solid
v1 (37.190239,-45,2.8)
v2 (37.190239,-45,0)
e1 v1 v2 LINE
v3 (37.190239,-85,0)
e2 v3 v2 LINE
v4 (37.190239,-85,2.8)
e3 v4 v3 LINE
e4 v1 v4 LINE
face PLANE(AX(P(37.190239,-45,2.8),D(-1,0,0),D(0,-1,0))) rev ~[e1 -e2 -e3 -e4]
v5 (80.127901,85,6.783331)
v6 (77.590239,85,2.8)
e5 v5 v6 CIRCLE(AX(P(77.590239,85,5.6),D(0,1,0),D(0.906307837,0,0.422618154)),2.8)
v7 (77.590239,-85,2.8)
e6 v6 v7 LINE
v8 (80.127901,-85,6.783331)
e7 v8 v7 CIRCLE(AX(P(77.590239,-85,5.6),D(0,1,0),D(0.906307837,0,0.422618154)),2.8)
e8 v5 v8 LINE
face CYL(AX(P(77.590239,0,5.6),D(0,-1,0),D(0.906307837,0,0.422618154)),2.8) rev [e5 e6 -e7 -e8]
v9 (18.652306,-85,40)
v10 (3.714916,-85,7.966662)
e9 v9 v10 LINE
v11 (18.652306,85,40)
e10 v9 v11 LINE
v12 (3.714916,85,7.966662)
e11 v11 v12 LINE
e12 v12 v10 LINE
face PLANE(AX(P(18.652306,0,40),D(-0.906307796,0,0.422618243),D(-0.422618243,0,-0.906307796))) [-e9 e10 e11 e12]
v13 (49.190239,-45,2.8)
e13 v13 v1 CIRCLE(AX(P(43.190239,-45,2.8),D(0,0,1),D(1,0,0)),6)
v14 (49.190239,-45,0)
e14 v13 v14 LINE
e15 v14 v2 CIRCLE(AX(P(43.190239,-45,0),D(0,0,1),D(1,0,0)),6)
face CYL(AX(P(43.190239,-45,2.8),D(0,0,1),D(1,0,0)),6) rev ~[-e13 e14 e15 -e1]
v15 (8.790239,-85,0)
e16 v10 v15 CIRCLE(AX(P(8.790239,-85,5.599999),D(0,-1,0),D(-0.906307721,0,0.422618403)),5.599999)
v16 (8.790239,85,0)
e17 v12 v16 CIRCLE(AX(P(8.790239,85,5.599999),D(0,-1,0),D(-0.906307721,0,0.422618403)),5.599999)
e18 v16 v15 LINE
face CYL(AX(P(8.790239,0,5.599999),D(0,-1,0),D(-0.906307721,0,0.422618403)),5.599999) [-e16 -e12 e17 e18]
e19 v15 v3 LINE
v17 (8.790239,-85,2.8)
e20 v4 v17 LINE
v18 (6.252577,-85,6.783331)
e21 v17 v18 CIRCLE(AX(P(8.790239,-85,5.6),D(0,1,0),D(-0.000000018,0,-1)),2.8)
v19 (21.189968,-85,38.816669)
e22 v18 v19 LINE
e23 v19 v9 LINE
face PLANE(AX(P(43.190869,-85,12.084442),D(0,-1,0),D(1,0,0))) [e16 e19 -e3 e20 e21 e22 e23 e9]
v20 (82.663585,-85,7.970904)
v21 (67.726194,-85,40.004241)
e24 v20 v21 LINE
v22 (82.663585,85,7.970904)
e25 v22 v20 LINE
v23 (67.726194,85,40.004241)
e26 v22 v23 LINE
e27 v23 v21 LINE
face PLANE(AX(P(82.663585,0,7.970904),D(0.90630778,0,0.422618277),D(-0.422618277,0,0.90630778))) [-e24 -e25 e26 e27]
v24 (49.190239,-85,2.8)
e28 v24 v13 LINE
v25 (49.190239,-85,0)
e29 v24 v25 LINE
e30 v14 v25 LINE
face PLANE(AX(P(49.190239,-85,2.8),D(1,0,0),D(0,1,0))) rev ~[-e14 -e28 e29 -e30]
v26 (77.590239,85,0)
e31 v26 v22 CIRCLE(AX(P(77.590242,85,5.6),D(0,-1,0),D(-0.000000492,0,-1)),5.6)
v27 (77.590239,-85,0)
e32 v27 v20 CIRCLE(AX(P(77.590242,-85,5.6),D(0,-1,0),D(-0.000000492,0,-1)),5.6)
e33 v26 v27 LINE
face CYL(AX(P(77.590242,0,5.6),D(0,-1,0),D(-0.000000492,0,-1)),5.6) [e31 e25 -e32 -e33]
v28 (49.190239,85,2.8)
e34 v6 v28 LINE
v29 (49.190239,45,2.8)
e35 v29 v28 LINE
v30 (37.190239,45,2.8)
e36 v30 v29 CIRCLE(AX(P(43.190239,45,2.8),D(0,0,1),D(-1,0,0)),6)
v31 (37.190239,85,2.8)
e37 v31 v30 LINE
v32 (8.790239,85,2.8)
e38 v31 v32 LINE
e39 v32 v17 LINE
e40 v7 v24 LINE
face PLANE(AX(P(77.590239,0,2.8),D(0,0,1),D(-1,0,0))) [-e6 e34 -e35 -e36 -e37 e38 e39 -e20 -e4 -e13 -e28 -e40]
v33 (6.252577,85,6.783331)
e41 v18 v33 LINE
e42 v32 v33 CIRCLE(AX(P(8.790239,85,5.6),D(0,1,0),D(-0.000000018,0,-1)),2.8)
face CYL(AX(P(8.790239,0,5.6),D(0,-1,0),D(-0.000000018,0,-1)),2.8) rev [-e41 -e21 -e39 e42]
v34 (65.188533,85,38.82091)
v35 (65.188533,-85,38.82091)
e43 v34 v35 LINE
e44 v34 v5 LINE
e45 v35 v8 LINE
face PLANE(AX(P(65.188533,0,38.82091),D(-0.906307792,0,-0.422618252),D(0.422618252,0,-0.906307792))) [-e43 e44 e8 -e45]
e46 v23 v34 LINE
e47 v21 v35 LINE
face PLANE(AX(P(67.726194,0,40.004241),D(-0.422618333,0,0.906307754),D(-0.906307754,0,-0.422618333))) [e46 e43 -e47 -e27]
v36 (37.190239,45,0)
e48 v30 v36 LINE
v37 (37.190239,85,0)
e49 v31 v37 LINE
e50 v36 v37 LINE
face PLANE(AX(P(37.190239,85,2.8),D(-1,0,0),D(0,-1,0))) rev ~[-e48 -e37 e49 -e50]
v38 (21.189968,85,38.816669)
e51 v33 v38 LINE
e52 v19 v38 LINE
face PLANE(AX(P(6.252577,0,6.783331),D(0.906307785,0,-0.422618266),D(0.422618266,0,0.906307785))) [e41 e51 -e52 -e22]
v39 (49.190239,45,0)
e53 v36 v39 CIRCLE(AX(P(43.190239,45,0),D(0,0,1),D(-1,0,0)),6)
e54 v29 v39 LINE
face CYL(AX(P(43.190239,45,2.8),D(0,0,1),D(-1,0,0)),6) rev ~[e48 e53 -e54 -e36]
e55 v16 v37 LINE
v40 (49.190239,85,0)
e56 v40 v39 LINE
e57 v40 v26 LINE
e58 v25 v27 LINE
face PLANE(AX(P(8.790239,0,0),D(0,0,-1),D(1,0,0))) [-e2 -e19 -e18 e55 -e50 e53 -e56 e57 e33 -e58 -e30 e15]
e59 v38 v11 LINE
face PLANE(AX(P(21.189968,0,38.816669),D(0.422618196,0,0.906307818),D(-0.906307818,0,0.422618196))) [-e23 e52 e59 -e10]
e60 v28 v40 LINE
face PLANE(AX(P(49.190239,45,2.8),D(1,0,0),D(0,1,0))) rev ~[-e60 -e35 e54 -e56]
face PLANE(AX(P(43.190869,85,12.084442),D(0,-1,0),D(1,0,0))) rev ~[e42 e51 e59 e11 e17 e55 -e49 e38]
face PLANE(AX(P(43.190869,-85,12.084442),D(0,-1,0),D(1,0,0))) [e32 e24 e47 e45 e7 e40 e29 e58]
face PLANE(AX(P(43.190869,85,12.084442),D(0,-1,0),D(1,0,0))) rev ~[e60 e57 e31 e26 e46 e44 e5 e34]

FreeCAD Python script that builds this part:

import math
import FreeCAD as App
import Part
import Sketcher
from FreeCAD import Vector
Q = App.Units.Quantity

doc = App.newDocument("Part")
params = doc.addObject("Spreadsheet::Sheet", "Params")
for row, (alias, value) in enumerate([
    ("sketch1_radius", "5.599999 mm"),
    ("sketch1_radius2", "2.8 mm"),
    ("sketch1_width", "68.8 mm"),
    ("pad1_length", "170 mm"),
    ("sketch2_radius", "6 mm"),
    ("sketch2_height", "40 mm"),
], start=1):
    params.set(f"A{row}", alias)
    params.set(f"B{row}", "=" + value)
    params.setAlias(f"B{row}", alias)

body = doc.addObject("PartDesign::Body", "Body")

# Sketch on XZ plane
sketch1 = body.newObject("Sketcher::SketchObject", "Sketch")
sketch1.AttachmentSupport = (doc.getObject("XZ_Plane"), [""])
sketch1.MapMode = "FlatFace"
sketch1.addGeometry(Part.LineSegment(Vector(18.652306, 40, 0), Vector(3.714916, 7.966662, 0)), False)
sketch1.addGeometry(Part.ArcOfCircle(Part.Circle(Vector(8.790239, 5.599999, 0), Vector(0, 0, 1), 5.599999), math.radians(154.999991), math.radians(270.000004)), False)
sketch1.addGeometry(Part.LineSegment(Vector(8.790239, 0, 0), Vector(77.590239, 0, 0)), False)
sketch1.addGeometry(Part.ArcOfCircle(Part.Circle(Vector(77.590242, 5.6, 0), Vector(0, 0, 1), 5.6), math.radians(-90.000028), math.radians(25.047897)), False)
sketch1.addGeometry(Part.LineSegment(Vector(82.663585, 7.970904, 0), Vector(67.726194, 40.004241, 0)), False)
sketch1.addGeometry(Part.LineSegment(Vector(67.726194, 40.004241, 0), Vector(65.188533, 38.82091, 0)), False)
sketch1.addGeometry(Part.LineSegment(Vector(65.188533, 38.82091, 0), Vector(80.127901, 6.783331, 0)), False)
sketch1.addGeometry(Part.ArcOfCircle(Part.Circle(Vector(77.590239, 5.6, 0), Vector(0, 0, 1), 2.8), math.radians(-89.999999), math.radians(24.999993)), False)
sketch1.addGeometry(Part.LineSegment(Vector(77.590239, 2.8, 0), Vector(8.790239, 2.8, 0)), False)
sketch1.addGeometry(Part.ArcOfCircle(Part.Circle(Vector(8.790239, 5.6, 0), Vector(0, 0, 1), 2.8), math.radians(155.000007), math.radians(269.999999)), False)
sketch1.addGeometry(Part.LineSegment(Vector(6.252577, 6.783331, 0), Vector(21.189968, 38.816669, 0)), False)
sketch1.addGeometry(Part.LineSegment(Vector(21.189968, 38.816669, 0), Vector(18.652306, 40, 0)), False)
sketch1.addConstraint(Sketcher.Constraint("Tangent", 0, 2, 1, 1))
sketch1.addConstraint(Sketcher.Constraint("Tangent", 1, 2, 2, 1))
sketch1.addConstraint(Sketcher.Constraint("Tangent", 2, 2, 3, 1))
sketch1.addConstraint(Sketcher.Constraint("Coincident", 3, 2, 4, 1))
sketch1.addConstraint(Sketcher.Constraint("Coincident", 4, 2, 5, 1))
sketch1.addConstraint(Sketcher.Constraint("Coincident", 5, 2, 6, 1))
sketch1.addConstraint(Sketcher.Constraint("Tangent", 6, 2, 7, 2))
sketch1.addConstraint(Sketcher.Constraint("Tangent", 7, 1, 8, 1))
sketch1.addConstraint(Sketcher.Constraint("Tangent", 8, 2, 9, 2))
sketch1.addConstraint(Sketcher.Constraint("Tangent", 9, 1, 10, 1))
sketch1.addConstraint(Sketcher.Constraint("Coincident", 10, 2, 11, 1))
sketch1.addConstraint(Sketcher.Constraint("Coincident", 11, 2, 0, 1))
sketch1.addConstraint(Sketcher.Constraint("Horizontal", 2))
sketch1.addConstraint(Sketcher.Constraint("Horizontal", 8))
sketch1.addConstraint(Sketcher.Constraint("Coincident", 7, 3, 3, 3))
sketch1.addConstraint(Sketcher.Constraint("Coincident", 9, 3, 1, 3))
sketch1.addConstraint(Sketcher.Constraint("Equal", 1, 3))
sketch1.addConstraint(Sketcher.Constraint("PointOnObject", 1, 2, -1))
sketch1.addConstraint(Sketcher.Constraint("Perpendicular", 4, 5))
sketch1.addConstraint(Sketcher.Constraint("Perpendicular", 5, 6))
sketch1.addConstraint(Sketcher.Constraint("Parallel", 0, 10))
sketch1.addConstraint(Sketcher.Constraint("Perpendicular", 10, 11))
sketch1.addConstraint(Sketcher.Constraint("Horizontal", 6, 2, 9, 1))
sketch1.addConstraint(Sketcher.Constraint("Equal", 0, 4))
sketch1.addConstraint(Sketcher.Constraint("Radius", 1, 5.599999))
sketch1.addConstraint(Sketcher.Constraint("Radius", 7, 2.8))
sketch1.addConstraint(Sketcher.Constraint("Angle", 0, Q("-114.999999 deg")))
sketch1.addConstraint(Sketcher.Constraint("DistanceX", 2, 1, 2, 2, 68.8))
sketch1.addConstraint(Sketcher.Constraint("DistanceY", -1, 1, 11, 2, 40.0))
sketch1.addConstraint(Sketcher.Constraint("DistanceX", -1, 1, 6, 2, 80.127901))
sketch1.addConstraint(Sketcher.Constraint("DistanceY", -1, 1, 4, 2, 40.004241))
sketch1.setExpression("Constraints[24]", "Params.sketch1_radius")
sketch1.setExpression("Constraints[25]", "Params.sketch1_radius2")
sketch1.setExpression("Constraints[27]", "Params.sketch1_width")
pad1 = body.newObject("PartDesign::Pad", "Pad")
pad1.Profile = sketch1
pad1.setExpression("Length", "Params.pad1_length")
pad1.Midplane = True

# Sketch on XY plane
sketch2 = body.newObject("Sketcher::SketchObject", "Sketch001")
sketch2.AttachmentSupport = (doc.getObject("XY_Plane"), [""])
sketch2.MapMode = "FlatFace"
sketch2.AttachmentOffset = App.Placement(Vector(0, 0, 2.8), App.Rotation())
sketch2.addGeometry(Part.LineSegment(Vector(49.190239, -85, 0), Vector(49.190239, -45, 0)), False)
sketch2.addGeometry(Part.ArcOfCircle(Part.Circle(Vector(43.190239, -45, 0), Vector(0, 0, 1), 6), math.radians(0), math.radians(180)), False)
sketch2.addGeometry(Part.LineSegment(Vector(37.190239, -45, 0), Vector(37.190239, -85, 0)), False)
sketch2.addGeometry(Part.LineSegment(Vector(37.190239, -85, 0), Vector(49.190239, -85, 0)), False)
sketch2.addGeometry(Part.LineSegment(Vector(49.190239, 45, 0), Vector(49.190239, 85, 0)), False)
sketch2.addGeometry(Part.LineSegment(Vector(49.190239, 85, 0), Vector(37.190239, 85, 0)), False)
sketch2.addGeometry(Part.LineSegment(Vector(37.190239, 85, 0), Vector(37.190239, 45, 0)), False)
sketch2.addGeometry(Part.ArcOfCircle(Part.Circle(Vector(43.190239, 45, 0), Vector(0, 0, 1), 6), math.radians(180), math.radians(360)), False)
sketch2.addConstraint(Sketcher.Constraint("Tangent", 0, 2, 1, 1))
sketch2.addConstraint(Sketcher.Constraint("Tangent", 1, 2, 2, 1))
sketch2.addConstraint(Sketcher.Constraint("Coincident", 2, 2, 3, 1))
sketch2.addConstraint(Sketcher.Constraint("Coincident", 3, 2, 0, 1))
sketch2.addConstraint(Sketcher.Constraint("Coincident", 4, 2, 5, 1))
sketch2.addConstraint(Sketcher.Constraint("Coincident", 5, 2, 6, 1))
sketch2.addConstraint(Sketcher.Constraint("Tangent", 6, 2, 7, 1))
sketch2.addConstraint(Sketcher.Constraint("Tangent", 7, 2, 4, 1))
sketch2.addConstraint(Sketcher.Constraint("Vertical", 0))
sketch2.addConstraint(Sketcher.Constraint("Vertical", 2))
sketch2.addConstraint(Sketcher.Constraint("Horizontal", 3))
sketch2.addConstraint(Sketcher.Constraint("Vertical", 4))
sketch2.addConstraint(Sketcher.Constraint("Horizontal", 5))
sketch2.addConstraint(Sketcher.Constraint("Vertical", 6))
sketch2.addConstraint(Sketcher.Constraint("Equal", 1, 7))
sketch2.addConstraint(Sketcher.Constraint("Symmetric", 1, 3, 7, 3, -1))
sketch2.addConstraint(Sketcher.Constraint("Equal", 2, 4))
sketch2.addConstraint(Sketcher.Constraint("Radius", 1, 6.0))
sketch2.addConstraint(Sketcher.Constraint("DistanceY", 0, 1, 0, 2, 40.0))
sketch2.addConstraint(Sketcher.Constraint("DistanceY", 1, 3, -1, 1, 45.0))
sketch2.addConstraint(Sketcher.Constraint("DistanceX", -1, 1, 1, 3, 43.190239))
sketch2.setExpression("Constraints[17]", "Params.sketch2_radius")
sketch2.setExpression("Constraints[18]", "Params.sketch2_height")
pocket1 = body.newObject("PartDesign::Pocket", "Pocket")
pocket1.Profile = sketch2
pocket1.Type = "ThroughAll"

doc.recompute()
